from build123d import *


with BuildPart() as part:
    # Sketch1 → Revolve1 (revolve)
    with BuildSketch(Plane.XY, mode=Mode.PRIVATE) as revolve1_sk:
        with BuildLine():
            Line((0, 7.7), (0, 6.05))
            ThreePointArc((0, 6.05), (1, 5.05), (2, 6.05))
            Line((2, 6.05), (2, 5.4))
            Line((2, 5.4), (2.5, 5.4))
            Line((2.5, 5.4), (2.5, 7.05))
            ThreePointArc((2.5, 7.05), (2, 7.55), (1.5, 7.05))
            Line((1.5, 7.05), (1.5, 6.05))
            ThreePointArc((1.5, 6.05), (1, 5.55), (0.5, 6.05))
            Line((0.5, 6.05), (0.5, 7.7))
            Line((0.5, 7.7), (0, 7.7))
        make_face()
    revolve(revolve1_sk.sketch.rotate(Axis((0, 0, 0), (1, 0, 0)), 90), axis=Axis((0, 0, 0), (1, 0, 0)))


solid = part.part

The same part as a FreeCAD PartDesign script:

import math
import FreeCAD as App
import Part
import Sketcher

V = App.Vector
Q = App.Units.Quantity

doc = App.newDocument("Part")
body = doc.addObject("PartDesign::Body", "Body")

sketch1 = body.newObject("Sketcher::SketchObject", "Sketch")
sketch1.AttachmentSupport = (doc.getObject("XY_Plane"), [""])
sketch1.MapMode = "FlatFace"
sketch1.addGeometry(Part.LineSegment(V(0, 7.7, 0), V(0, 6.05, 0)), False)
sketch1.addGeometry(Part.ArcOfCircle(Part.Circle(V(1, 6.05, 0), V(0, 0, 1), 1), math.radians(180), math.radians(360)), False)
sketch1.addGeometry(Part.LineSegment(V(2, 6.05, 0), V(2, 5.4, 0)), False)
sketch1.addGeometry(Part.LineSegment(V(2, 5.4, 0), V(2.5, 5.4, 0)), False)
sketch1.addGeometry(Part.LineSegment(V(2.5, 5.4, 0), V(2.5, 7.05, 0)), False)
sketch1.addGeometry(Part.ArcOfCircle(Part.Circle(V(2, 7.05, 0), V(0, 0, 1), 0.5), math.radians(0), math.radians(180)), False)
sketch1.addGeometry(Part.LineSegment(V(1.5, 7.05, 0), V(1.5, 6.05, 0)), False)
sketch1.addGeometry(Part.ArcOfCircle(Part.Circle(V(1, 6.05, 0), V(0, 0, 1), 0.5), math.radians(180), math.radians(360)), False)
sketch1.addGeometry(Part.LineSegment(V(0.5, 6.05, 0), V(0.5, 7.7, 0)), False)
sketch1.addGeometry(Part.LineSegment(V(0.5, 7.7, 0), V(0, 7.7, 0)), False)
sketch1.addConstraint(Sketcher.Constraint("Tangent", 0, 2, 1, 1))
sketch1.addConstraint(Sketcher.Constraint("Tangent", 1, 2, 2, 1))
sketch1.addConstraint(Sketcher.Constraint("Coincident", 2, 2, 3, 1))
sketch1.addConstraint(Sketcher.Constraint("Coincident", 3, 2, 4, 1))
sketch1.addConstraint(Sketcher.Constraint("Tangent", 4, 2, 5, 1))
sketch1.addConstraint(Sketcher.Constraint("Tangent", 5, 2, 6, 1))
sketch1.addConstraint(Sketcher.Constraint("Tangent", 6, 2, 7, 2))
sketch1.addConstraint(Sketcher.Constraint("Tangent", 7, 1, 8, 1))
sketch1.addConstraint(Sketcher.Constraint("Coincident", 8, 2, 9, 1))
sketch1.addConstraint(Sketcher.Constraint("Coincident", 9, 2, 0, 1))
sketch1.addConstraint(Sketcher.Constraint("Vertical", 0))
sketch1.addConstraint(Sketcher.Constraint("Vertical", 2))
sketch1.addConstraint(Sketcher.Constraint("Horizontal", 3))
sketch1.addConstraint(Sketcher.Constraint("Vertical", 4))
sketch1.addConstraint(Sketcher.Constraint("Vertical", 6))
sketch1.addConstraint(Sketcher.Constraint("Vertical", 8))
sketch1.addConstraint(Sketcher.Constraint("Horizontal", 9))
sketch1.addConstraint(Sketcher.Constraint("Coincident", 7, 3, 1, 3))
sketch1.addConstraint(Sketcher.Constraint("Equal", 5, 7))
sketch1.addConstraint(Sketcher.Constraint("PointOnObject", 0, 2, -2))
sketch1.addConstraint(Sketcher.Constraint("Vertical", 5, 3, 1, 2))
sketch1.addConstraint(Sketcher.Constraint("Equal", 0, 4))
sketch1.addConstraint(Sketcher.Constraint("Radius", 1, Q("1 mm")))
sketch1.addConstraint(Sketcher.Constraint("DistanceY", 6, 2, 6, 1, Q("1 mm")))
sketch1.addConstraint(Sketcher.Constraint("DistanceY", 0, 2, 0, 1, Q("1.65 mm")))
sketch1.addConstraint(Sketcher.Constraint("DistanceY", -1, 1, 2, 2, Q("5.4 mm")))
revolution = body.newObject("PartDesign::Revolution", "Revolution")
revolution.Profile = sketch1
revolution.ReferenceAxis = (sketch1, ["H_Axis"])
revolution.Angle = 360

doc.recompute()
